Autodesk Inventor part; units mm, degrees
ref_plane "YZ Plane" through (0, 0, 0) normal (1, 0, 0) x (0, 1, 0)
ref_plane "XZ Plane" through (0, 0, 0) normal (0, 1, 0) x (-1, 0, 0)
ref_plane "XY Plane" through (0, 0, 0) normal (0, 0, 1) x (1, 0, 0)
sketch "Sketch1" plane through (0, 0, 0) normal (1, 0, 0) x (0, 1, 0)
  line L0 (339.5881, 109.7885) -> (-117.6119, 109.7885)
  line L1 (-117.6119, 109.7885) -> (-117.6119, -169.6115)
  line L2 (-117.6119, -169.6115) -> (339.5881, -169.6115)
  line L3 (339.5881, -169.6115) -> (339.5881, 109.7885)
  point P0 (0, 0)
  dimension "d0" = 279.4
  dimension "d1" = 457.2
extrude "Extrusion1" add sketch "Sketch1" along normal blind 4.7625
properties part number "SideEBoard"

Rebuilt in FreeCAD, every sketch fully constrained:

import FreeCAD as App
import Part
import Sketcher
Q = App.Units.Quantity


def add_polygon(sketch, points):
    """Adds a closed chain of lines whose ends are joined by coincident constraints."""
    first, n = sketch.GeometryCount, len(points)
    for a, b in zip(points, points[1:] + points[:1]):
        sketch.addGeometry(Part.LineSegment(App.Vector(*a, 0), App.Vector(*b, 0)), False)
    for i in range(n):
        sketch.addConstraint(Sketcher.Constraint("Coincident", first + i, 2, first + (i + 1) % n, 1))

doc = App.newDocument("Part")
body = doc.addObject("PartDesign::Body", "Body")

sketch1 = body.newObject("Sketcher::SketchObject", "Sketch")
sketch1.AttachmentSupport = (doc.getObject("YZ_Plane"), [""])
sketch1.MapMode = "FlatFace"
add_polygon(sketch1, [(339.5881, -169.6115), (339.5881, 109.7885), (-117.6119, 109.7885), (-117.6119, -169.6115)])
sketch1.addConstraint([
    Sketcher.Constraint("Vertical", 0),
    Sketcher.Constraint("Horizontal", 1),
    Sketcher.Constraint("Vertical", 2),
    Sketcher.Constraint("Horizontal", 3),
    Sketcher.Constraint("DistanceX", 1, 2, 1, 1, Q("18 in")),
    Sketcher.Constraint("DistanceY", 0, 1, 0, 2, Q("11 in")),
    Sketcher.Constraint("DistanceX", -1, 1, 0, 2, Q("13.3696 in")),
    Sketcher.Constraint("DistanceY", -1, 1, 0, 2, 109.7885),
])
pad1 = body.newObject("PartDesign::Pad", "Pad")
pad1.Profile = sketch1
pad1.Length = Q("0.1875 in")

doc.recompute()
